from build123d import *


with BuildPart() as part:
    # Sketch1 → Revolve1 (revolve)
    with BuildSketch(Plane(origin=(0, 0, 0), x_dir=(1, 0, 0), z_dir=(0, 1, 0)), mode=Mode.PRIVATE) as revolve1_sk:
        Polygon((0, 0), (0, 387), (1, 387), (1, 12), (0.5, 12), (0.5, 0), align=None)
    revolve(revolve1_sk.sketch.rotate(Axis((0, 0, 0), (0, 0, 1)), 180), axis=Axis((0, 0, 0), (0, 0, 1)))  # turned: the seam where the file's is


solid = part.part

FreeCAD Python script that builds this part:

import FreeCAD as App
import Part
import Sketcher
Q = App.Units.Quantity

doc = App.newDocument("Part")
params = doc.addObject("Spreadsheet::Sheet", "Params")
for row, (alias, value) in enumerate([
    ("sketch1_width", "1 mm"),
    ("sketch1_height", "387 mm"),
    ("sketch1_height2", "12 mm"),
    ("revolution_angle", "360 deg"),
], start=1):
    params.set(f"A{row}", alias)
    params.set(f"B{row}", "=" + value)
    params.setAlias(f"B{row}", alias)

body = doc.addObject("PartDesign::Body", "Body")

# Sketch on XZ plane
sketch1 = body.newObject("Sketcher::SketchObject", "Sketch")
sketch1.AttachmentSupport = (doc.getObject("XZ_Plane"), [""])
sketch1.MapMode = "FlatFace"
sketch1.addGeometry([
    Part.LineSegment(App.Vector(0, -387, 0), App.Vector(0, 0, 0)),  # 0
    Part.LineSegment(App.Vector(0, 0, 0), App.Vector(0.5, 0, 0)),  # 1
    Part.LineSegment(App.Vector(0.5, 0, 0), App.Vector(0.5, -12, 0)),  # 2
    Part.LineSegment(App.Vector(0.5, -12, 0), App.Vector(1, -12, 0)),  # 3
    Part.LineSegment(App.Vector(1, -12, 0), App.Vector(1, -387, 0)),  # 4
    Part.LineSegment(App.Vector(1, -387, 0), App.Vector(0, -387, 0)),  # 5
], False)
sketch1.addConstraint([
    Sketcher.Constraint("Coincident", 0, 2, 1, 1),
    Sketcher.Constraint("Coincident", 1, 2, 2, 1),
    Sketcher.Constraint("Coincident", 2, 2, 3, 1),
    Sketcher.Constraint("Coincident", 3, 2, 4, 1),
    Sketcher.Constraint("Coincident", 4, 2, 5, 1),
    Sketcher.Constraint("Coincident", 5, 2, 0, 1),
    Sketcher.Constraint("Vertical", 0),
    Sketcher.Constraint("Horizontal", 1),
    Sketcher.Constraint("Vertical", 2),
    Sketcher.Constraint("Horizontal", 3),
    Sketcher.Constraint("Vertical", 4),
    Sketcher.Constraint("Horizontal", 5),
    Sketcher.Constraint("Coincident", 0, 2, -1, 1),
    Sketcher.Constraint("Equal", 1, 3),
    Sketcher.Constraint("DistanceX", 5, 2, 5, 1, Q("1 mm")),
    Sketcher.Constraint("DistanceY", 0, 1, 0, 2, Q("387 mm")),
    Sketcher.Constraint("DistanceY", 2, 2, 2, 1, Q("12 mm")),
])
sketch1.setExpression("Constraints[14]", "Params.sketch1_width")
sketch1.setExpression("Constraints[15]", "Params.sketch1_height")
sketch1.setExpression("Constraints[16]", "Params.sketch1_height2")
revolution = body.newObject("PartDesign::Revolution", "Revolution")
revolution.Profile = sketch1
revolution.ReferenceAxis = (sketch1, ["V_Axis"])
revolution.setExpression("Angle", "Params.revolution_angle")

doc.recompute()
